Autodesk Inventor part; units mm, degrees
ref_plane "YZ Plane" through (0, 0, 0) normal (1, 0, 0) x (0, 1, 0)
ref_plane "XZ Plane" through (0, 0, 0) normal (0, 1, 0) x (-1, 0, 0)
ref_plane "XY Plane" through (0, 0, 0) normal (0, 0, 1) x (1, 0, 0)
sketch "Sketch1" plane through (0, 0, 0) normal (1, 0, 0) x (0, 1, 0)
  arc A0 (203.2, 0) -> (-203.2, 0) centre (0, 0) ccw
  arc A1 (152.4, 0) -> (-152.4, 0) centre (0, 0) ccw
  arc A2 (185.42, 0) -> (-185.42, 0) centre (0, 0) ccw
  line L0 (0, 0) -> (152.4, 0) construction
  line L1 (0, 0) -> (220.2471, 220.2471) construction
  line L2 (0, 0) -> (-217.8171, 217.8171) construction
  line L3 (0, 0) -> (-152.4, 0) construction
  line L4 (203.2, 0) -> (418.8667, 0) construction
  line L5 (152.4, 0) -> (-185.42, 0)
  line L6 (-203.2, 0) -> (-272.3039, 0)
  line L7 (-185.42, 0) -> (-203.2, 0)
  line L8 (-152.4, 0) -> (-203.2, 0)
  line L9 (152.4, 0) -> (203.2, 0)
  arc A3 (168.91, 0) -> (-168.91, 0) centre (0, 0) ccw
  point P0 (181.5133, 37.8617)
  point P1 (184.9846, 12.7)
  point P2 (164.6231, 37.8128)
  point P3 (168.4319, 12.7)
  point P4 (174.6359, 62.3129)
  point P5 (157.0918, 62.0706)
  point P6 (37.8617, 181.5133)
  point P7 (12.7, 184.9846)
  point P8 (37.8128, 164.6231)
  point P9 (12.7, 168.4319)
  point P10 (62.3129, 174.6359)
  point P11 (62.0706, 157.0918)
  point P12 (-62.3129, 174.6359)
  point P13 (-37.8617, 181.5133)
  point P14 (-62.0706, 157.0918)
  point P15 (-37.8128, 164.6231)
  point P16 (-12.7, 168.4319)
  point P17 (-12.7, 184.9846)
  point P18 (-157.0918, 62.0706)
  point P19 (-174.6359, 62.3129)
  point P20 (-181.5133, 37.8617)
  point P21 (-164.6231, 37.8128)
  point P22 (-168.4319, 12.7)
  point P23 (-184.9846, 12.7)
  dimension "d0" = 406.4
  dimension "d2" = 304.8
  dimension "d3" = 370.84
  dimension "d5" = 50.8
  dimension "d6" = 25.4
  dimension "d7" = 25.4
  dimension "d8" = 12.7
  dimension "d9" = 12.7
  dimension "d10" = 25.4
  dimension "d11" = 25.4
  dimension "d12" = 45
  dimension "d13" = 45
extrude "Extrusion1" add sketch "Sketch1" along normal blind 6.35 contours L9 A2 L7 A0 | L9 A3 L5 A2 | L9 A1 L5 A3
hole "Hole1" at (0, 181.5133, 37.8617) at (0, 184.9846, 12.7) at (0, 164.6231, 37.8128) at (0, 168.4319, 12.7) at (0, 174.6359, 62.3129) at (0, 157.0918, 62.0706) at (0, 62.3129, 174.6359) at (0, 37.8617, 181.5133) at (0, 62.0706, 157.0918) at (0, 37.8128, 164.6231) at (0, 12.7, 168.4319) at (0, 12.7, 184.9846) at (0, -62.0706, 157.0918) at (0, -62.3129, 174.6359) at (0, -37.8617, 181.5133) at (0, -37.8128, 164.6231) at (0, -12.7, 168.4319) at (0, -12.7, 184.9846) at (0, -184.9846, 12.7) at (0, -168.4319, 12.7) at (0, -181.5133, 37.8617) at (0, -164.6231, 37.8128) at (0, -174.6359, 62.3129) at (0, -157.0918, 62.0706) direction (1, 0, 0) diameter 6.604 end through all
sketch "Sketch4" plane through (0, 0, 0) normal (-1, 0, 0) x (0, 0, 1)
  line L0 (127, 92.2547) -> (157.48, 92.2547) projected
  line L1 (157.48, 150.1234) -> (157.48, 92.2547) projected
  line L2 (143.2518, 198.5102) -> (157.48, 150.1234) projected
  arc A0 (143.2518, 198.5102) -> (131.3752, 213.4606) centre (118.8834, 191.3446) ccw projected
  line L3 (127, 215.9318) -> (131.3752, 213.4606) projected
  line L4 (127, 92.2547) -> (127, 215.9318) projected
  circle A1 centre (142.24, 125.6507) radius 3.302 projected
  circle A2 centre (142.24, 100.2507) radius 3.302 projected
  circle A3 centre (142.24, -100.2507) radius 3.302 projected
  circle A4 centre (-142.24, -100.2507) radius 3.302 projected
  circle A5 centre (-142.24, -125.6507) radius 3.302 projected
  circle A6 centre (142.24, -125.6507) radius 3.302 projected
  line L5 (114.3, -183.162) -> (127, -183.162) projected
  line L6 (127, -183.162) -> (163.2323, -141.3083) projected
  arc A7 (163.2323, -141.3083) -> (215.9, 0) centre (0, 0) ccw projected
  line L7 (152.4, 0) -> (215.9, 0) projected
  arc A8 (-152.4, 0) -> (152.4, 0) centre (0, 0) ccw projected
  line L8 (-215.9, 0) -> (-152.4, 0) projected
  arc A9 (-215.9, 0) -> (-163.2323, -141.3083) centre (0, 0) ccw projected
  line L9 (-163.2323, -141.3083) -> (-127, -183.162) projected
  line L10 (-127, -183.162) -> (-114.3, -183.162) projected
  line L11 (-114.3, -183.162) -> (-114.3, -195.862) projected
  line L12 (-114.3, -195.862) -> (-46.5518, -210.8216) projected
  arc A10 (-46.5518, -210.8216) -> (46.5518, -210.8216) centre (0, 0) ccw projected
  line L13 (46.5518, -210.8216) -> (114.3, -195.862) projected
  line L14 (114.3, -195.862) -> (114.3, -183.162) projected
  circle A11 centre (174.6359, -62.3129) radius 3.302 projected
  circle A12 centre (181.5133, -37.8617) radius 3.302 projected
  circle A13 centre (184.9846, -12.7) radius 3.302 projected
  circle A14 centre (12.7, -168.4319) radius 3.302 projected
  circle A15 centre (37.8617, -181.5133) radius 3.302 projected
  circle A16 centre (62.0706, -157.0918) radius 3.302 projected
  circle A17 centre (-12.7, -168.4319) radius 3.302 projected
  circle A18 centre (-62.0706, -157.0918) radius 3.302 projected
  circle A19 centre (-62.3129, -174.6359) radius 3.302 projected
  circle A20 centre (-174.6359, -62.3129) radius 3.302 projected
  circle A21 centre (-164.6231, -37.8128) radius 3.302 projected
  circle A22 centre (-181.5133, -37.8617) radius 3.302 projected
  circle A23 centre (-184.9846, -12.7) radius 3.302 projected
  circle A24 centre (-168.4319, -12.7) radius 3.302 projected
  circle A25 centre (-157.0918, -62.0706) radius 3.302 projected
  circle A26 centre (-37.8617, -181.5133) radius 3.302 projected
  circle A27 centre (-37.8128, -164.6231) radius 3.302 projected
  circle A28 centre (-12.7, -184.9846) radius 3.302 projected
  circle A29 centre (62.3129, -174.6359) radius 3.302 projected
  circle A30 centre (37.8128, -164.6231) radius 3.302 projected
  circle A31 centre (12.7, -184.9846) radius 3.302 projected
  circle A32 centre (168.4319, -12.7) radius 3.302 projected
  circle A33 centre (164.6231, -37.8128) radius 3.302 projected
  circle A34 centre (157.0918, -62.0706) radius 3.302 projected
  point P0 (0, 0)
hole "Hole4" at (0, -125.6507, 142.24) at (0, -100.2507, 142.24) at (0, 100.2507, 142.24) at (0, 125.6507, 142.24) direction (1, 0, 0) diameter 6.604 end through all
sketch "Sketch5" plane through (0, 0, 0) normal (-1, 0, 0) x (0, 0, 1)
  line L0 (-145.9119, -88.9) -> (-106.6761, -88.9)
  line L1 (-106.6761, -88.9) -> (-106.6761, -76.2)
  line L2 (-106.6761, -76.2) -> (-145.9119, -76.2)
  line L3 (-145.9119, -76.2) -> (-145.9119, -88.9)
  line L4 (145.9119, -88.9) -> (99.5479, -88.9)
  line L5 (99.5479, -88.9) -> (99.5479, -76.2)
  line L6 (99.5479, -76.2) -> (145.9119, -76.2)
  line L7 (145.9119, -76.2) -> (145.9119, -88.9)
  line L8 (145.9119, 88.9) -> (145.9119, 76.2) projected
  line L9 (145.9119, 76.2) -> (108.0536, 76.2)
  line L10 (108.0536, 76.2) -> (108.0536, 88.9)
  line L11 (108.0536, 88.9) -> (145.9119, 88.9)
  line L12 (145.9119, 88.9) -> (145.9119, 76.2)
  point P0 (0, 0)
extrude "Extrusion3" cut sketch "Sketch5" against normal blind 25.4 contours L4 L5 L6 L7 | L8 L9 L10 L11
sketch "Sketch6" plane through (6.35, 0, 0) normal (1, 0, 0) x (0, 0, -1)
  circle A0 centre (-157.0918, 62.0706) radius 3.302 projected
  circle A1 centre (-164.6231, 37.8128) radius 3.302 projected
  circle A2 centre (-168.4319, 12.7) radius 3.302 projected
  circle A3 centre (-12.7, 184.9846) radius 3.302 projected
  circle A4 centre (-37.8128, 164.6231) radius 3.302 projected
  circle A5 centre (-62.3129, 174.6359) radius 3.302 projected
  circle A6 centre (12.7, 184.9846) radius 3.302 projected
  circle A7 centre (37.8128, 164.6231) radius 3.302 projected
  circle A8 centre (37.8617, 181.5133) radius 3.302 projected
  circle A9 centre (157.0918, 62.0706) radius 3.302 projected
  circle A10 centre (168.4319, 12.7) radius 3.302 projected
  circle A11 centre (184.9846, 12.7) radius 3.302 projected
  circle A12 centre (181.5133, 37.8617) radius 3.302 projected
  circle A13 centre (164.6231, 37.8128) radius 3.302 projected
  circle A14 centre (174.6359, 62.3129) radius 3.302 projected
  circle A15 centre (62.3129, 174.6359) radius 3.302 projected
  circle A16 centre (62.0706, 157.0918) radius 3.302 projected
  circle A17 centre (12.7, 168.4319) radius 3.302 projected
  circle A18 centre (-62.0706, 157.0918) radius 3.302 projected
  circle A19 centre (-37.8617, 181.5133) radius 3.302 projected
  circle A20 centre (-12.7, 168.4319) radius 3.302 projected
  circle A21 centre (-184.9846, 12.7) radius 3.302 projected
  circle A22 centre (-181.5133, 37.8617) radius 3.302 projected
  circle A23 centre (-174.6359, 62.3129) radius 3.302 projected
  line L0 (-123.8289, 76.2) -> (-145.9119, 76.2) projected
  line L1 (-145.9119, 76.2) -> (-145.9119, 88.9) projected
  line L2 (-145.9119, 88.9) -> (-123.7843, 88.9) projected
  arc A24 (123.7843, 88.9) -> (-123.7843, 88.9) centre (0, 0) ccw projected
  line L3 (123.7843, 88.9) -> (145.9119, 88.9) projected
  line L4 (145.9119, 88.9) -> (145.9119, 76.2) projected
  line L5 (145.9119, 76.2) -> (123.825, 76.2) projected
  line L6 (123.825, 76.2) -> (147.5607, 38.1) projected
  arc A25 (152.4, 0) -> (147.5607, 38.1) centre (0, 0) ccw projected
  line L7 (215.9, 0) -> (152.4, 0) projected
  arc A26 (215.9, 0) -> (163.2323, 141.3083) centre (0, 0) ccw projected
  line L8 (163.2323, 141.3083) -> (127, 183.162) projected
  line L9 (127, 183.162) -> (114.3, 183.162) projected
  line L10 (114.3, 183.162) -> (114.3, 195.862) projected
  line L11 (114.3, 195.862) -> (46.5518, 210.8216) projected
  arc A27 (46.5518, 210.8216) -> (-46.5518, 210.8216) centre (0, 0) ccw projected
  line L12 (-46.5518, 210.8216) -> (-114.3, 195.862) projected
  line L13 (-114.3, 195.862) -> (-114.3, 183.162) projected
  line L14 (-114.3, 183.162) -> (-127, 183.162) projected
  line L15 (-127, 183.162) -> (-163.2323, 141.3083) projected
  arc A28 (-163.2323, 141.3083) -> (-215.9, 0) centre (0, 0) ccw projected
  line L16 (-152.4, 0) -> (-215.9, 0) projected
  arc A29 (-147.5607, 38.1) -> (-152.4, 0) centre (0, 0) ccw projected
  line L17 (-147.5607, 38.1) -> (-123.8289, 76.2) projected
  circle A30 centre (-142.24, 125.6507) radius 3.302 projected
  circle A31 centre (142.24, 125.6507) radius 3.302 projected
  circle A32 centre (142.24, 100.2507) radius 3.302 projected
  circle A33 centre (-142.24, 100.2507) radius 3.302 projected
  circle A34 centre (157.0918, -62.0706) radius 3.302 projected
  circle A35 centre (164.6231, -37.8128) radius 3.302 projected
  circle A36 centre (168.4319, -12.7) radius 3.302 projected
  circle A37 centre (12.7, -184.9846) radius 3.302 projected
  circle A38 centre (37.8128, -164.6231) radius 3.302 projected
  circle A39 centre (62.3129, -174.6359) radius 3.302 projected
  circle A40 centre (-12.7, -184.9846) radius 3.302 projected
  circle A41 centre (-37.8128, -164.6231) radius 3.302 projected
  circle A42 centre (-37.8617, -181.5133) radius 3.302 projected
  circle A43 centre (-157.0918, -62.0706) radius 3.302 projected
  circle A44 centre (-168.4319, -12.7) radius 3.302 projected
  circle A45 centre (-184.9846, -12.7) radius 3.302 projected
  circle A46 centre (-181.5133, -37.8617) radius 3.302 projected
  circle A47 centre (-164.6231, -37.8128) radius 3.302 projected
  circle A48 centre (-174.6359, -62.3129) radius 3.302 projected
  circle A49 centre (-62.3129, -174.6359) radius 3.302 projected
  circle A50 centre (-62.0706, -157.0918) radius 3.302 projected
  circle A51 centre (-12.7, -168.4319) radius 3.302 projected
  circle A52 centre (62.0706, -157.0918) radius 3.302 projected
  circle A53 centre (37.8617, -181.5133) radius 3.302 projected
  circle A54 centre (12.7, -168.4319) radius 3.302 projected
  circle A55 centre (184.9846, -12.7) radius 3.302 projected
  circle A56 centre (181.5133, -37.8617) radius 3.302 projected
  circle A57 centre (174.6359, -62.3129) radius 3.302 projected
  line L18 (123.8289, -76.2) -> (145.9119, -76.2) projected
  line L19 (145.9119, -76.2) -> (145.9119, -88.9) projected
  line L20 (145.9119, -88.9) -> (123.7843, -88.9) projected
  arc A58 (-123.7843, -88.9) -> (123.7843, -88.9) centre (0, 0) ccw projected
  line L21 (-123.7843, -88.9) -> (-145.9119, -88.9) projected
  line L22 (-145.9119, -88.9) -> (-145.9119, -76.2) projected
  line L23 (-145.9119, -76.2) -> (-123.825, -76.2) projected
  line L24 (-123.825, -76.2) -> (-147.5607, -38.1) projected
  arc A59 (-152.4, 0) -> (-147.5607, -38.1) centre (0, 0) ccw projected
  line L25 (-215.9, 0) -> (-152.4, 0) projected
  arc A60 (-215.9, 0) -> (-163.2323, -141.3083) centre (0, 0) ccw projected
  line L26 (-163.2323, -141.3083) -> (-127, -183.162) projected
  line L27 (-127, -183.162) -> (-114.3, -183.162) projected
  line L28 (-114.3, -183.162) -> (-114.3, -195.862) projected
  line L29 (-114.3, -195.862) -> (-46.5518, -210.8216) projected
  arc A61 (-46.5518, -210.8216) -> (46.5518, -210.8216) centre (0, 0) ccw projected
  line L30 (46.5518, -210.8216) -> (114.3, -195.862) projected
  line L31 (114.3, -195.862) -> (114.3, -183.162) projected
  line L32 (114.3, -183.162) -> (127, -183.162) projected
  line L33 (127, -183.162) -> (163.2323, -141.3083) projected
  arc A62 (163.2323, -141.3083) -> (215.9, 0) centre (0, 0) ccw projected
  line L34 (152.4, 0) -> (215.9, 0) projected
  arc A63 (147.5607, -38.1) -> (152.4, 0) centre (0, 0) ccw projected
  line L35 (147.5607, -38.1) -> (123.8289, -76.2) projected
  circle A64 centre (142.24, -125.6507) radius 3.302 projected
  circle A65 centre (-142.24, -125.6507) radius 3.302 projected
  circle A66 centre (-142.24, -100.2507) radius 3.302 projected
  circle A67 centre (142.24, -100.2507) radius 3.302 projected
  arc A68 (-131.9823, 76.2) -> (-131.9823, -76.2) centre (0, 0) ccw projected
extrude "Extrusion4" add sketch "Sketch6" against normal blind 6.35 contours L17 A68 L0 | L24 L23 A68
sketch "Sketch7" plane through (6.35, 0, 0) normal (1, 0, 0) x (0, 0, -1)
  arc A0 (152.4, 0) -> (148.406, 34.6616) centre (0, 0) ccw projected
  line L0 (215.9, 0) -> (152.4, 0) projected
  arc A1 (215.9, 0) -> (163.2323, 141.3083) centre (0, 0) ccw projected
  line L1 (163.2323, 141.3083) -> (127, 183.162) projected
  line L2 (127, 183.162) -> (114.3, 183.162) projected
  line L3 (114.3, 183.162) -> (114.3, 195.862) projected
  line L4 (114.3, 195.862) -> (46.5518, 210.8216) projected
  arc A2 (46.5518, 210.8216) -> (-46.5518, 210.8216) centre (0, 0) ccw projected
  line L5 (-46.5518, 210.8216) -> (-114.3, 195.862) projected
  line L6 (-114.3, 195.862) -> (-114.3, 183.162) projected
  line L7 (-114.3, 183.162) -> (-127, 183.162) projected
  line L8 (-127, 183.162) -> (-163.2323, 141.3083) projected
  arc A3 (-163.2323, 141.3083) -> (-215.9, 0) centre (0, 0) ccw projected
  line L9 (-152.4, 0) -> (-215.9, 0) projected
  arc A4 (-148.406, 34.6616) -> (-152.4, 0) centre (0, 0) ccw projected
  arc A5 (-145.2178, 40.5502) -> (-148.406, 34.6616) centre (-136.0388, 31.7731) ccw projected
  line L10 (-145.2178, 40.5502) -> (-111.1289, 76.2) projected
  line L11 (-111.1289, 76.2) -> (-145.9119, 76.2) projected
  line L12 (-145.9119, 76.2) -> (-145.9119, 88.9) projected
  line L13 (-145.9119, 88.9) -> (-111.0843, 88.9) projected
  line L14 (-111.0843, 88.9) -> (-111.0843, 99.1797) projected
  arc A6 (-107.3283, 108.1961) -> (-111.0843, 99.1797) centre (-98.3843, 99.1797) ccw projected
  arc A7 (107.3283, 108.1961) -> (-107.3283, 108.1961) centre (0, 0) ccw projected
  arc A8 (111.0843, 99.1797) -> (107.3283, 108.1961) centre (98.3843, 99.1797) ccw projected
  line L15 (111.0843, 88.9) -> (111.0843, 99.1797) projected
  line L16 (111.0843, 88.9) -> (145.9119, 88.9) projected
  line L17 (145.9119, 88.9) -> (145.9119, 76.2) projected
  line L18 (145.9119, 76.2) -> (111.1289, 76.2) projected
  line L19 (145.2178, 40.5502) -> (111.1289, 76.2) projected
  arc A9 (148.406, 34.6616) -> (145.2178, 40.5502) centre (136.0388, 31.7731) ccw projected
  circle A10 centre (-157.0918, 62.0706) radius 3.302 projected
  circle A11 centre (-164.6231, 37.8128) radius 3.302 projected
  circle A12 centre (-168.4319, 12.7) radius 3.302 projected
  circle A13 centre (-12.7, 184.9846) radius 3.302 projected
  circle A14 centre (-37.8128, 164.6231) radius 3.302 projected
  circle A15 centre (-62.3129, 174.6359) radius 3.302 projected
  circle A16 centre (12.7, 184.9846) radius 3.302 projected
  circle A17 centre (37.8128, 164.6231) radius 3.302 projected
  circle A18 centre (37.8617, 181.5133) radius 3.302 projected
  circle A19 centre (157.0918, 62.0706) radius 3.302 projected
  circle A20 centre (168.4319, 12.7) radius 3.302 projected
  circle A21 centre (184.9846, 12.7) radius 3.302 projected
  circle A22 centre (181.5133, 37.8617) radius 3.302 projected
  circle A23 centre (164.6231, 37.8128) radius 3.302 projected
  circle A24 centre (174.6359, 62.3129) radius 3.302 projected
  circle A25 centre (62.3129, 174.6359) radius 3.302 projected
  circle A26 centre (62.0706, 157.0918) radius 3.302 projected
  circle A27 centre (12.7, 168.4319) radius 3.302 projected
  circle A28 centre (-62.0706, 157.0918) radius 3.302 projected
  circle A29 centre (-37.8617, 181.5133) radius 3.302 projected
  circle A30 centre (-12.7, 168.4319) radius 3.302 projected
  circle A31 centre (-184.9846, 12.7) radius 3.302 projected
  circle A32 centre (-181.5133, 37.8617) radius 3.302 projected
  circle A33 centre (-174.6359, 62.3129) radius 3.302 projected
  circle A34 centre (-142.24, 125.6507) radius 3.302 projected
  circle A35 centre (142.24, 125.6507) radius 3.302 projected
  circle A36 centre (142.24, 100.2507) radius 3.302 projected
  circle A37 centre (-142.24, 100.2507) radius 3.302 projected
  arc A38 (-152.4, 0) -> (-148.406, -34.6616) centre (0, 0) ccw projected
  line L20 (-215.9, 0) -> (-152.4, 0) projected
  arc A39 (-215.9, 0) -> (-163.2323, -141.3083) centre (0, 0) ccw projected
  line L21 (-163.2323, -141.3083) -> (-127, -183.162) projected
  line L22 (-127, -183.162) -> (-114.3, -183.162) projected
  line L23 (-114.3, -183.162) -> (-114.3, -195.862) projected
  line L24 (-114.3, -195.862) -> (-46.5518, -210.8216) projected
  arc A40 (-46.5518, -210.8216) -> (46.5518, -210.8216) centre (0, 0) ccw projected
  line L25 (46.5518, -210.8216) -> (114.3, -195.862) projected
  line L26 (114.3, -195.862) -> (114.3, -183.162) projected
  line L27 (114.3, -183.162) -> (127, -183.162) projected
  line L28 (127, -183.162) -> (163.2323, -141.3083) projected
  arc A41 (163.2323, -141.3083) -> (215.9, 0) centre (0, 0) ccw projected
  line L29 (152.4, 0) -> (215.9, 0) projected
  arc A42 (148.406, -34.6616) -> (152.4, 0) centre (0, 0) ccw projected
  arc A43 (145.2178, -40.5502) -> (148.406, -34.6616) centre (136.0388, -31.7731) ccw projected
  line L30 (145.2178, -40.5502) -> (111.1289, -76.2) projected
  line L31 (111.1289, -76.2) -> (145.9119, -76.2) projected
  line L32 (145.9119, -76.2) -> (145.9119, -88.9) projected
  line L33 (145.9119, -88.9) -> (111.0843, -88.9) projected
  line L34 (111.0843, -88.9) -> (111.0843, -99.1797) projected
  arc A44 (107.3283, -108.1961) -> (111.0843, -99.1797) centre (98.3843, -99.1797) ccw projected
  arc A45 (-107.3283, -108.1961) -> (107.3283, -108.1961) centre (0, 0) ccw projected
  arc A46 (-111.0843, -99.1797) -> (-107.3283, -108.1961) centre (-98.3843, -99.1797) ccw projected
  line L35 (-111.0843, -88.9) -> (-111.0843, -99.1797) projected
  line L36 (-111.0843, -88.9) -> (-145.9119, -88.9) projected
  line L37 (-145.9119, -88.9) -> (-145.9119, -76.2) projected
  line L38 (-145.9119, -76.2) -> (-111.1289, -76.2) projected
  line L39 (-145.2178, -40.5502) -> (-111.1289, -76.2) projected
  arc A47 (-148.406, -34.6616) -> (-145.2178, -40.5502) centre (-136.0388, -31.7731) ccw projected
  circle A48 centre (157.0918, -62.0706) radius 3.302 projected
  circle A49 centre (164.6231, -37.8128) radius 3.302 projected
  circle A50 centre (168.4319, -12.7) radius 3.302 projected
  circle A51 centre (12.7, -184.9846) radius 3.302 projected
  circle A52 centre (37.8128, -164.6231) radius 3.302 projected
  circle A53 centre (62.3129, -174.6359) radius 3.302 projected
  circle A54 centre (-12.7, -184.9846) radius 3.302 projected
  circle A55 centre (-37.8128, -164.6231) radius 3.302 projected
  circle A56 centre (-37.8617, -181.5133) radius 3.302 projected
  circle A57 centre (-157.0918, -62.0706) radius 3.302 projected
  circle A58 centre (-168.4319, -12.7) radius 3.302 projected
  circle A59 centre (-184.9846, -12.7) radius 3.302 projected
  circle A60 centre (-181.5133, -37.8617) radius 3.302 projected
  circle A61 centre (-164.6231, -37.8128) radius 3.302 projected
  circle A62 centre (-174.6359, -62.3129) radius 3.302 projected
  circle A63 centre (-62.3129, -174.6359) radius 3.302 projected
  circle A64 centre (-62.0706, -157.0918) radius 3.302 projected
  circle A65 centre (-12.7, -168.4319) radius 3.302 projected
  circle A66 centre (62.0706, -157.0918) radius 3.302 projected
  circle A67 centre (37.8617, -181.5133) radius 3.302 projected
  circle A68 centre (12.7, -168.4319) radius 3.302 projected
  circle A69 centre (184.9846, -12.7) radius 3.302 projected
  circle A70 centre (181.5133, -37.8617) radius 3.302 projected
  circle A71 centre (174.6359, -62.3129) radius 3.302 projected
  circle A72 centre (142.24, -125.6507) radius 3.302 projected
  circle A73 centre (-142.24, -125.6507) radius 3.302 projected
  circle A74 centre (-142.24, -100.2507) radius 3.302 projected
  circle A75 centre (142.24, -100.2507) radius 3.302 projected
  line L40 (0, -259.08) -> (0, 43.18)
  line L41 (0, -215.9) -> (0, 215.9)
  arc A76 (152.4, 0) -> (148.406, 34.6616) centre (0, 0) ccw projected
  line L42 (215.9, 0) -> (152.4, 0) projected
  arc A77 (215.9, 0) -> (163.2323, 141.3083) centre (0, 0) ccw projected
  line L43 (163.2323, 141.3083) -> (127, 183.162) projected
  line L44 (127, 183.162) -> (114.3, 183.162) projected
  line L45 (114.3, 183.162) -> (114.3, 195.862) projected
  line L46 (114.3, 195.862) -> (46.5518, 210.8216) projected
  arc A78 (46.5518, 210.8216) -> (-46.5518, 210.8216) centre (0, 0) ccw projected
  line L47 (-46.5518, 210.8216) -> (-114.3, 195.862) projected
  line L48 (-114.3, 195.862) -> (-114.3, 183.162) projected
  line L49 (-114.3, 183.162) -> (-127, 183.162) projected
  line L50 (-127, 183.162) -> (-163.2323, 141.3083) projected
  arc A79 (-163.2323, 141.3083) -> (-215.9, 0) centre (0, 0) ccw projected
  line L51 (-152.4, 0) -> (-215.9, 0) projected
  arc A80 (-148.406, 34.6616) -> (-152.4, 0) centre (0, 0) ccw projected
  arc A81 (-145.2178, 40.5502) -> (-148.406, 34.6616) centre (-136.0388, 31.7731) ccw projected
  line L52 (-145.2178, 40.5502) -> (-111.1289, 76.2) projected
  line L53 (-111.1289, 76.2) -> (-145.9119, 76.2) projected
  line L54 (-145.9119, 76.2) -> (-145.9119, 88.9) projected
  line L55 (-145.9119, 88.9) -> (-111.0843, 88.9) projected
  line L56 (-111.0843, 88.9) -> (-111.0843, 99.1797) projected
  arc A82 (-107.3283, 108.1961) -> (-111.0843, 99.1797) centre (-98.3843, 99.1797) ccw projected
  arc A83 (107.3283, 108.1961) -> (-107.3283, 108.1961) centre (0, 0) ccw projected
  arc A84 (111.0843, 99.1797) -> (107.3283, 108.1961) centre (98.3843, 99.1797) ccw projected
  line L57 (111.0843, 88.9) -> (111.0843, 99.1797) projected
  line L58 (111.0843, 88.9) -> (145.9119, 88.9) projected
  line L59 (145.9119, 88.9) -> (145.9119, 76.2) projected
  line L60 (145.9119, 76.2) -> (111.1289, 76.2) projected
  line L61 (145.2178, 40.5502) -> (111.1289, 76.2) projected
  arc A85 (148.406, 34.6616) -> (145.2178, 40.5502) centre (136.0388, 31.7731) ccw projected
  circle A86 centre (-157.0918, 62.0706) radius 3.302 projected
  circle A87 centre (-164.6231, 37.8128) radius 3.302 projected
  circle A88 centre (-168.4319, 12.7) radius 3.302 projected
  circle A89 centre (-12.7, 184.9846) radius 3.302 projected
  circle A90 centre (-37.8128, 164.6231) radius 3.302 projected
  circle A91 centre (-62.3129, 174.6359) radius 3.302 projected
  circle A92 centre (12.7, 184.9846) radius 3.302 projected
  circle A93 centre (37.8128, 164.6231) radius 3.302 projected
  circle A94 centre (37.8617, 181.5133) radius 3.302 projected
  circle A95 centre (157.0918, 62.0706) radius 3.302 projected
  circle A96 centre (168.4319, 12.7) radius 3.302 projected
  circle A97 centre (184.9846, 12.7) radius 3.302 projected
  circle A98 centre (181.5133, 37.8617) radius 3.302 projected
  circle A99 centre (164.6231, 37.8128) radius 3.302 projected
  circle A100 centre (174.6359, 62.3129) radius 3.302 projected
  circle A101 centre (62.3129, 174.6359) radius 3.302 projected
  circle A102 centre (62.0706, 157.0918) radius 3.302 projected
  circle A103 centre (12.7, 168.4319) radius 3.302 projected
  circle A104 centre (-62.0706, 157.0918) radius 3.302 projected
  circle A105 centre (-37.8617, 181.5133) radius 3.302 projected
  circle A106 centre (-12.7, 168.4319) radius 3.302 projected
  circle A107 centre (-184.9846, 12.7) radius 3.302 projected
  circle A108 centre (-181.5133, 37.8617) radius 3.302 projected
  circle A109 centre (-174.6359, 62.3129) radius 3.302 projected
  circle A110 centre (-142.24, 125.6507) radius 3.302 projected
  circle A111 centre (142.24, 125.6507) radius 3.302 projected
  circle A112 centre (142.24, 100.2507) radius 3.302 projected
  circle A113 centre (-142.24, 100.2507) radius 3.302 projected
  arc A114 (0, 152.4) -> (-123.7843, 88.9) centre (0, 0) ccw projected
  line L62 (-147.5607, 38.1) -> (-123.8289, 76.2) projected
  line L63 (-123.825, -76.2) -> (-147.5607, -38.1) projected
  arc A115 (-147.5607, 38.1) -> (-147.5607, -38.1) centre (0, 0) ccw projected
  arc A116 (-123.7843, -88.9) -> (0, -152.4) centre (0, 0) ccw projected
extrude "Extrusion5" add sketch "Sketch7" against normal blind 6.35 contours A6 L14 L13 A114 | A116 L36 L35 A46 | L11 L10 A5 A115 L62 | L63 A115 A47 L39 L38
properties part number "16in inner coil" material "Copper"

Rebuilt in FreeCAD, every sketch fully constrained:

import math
import FreeCAD as App
import Part
import Sketcher
Q = App.Units.Quantity


def add_polygon(sketch, points):
    """Adds a closed chain of lines whose ends are joined by coincident constraints."""
    first, n = sketch.GeometryCount, len(points)
    for a, b in zip(points, points[1:] + points[:1]):
        sketch.addGeometry(Part.LineSegment(App.Vector(*a, 0), App.Vector(*b, 0)), False)
    for i in range(n):
        sketch.addConstraint(Sketcher.Constraint("Coincident", first + i, 2, first + (i + 1) % n, 1))

doc = App.newDocument("Part")
body = doc.addObject("PartDesign::Body", "Body")

# Sketch on YZ plane
sketch1 = body.newObject("Sketcher::SketchObject", "Sketch")
sketch1.AttachmentSupport = (doc.getObject("YZ_Plane"), [""])
sketch1.MapMode = "FlatFace"
sketch1.addGeometry(Part.ArcOfCircle(Part.Circle(App.Vector(0, 0, 0), App.Vector(0, 0, 1), 203), math.radians(0), math.radians(180)), False)
sketch1.addGeometry(Part.LineSegment(App.Vector(-203, 0, 0), App.Vector(-152, 0, 0)), False)
sketch1.addGeometry(Part.ArcOfCircle(Part.Circle(App.Vector(0, 0, 0), App.Vector(0, 0, 1), 152), math.radians(0), math.radians(180)), False)
sketch1.addGeometry(Part.LineSegment(App.Vector(152, 0, 0), App.Vector(203, 0, 0)), False)
sketch1.addConstraint(Sketcher.Constraint("Coincident", 0, 2, 1, 1))
sketch1.addConstraint(Sketcher.Constraint("Coincident", 1, 2, 2, 2))
sketch1.addConstraint(Sketcher.Constraint("Coincident", 2, 1, 3, 1))
sketch1.addConstraint(Sketcher.Constraint("Coincident", 3, 2, 0, 1))
sketch1.addConstraint(Sketcher.Constraint("Horizontal", 1))
sketch1.addConstraint(Sketcher.Constraint("Horizontal", 3))
sketch1.addConstraint(Sketcher.Constraint("Coincident", 0, 3, -1, 1))
sketch1.addConstraint(Sketcher.Constraint("Coincident", 2, 3, -1, 1))
sketch1.addConstraint(Sketcher.Constraint("PointOnObject", 0, 2, -1))
sketch1.addConstraint(Sketcher.Constraint("PointOnObject", 2, 1, -1))
sketch1.addConstraint(Sketcher.Constraint("Radius", 0, Q("8 in")))
sketch1.addConstraint(Sketcher.Constraint("Radius", 2, Q("6 in")))
pad1 = body.newObject("PartDesign::Pad", "Pad")
pad1.Profile = sketch1
pad1.Length = Q("0.25 in")

# Sketch on YZ plane
sketch2 = body.newObject("Sketcher::SketchObject", "Sketch001")
sketch2.AttachmentSupport = (doc.getObject("YZ_Plane"), [""])
sketch2.MapMode = "FlatFace"
sketch2.addGeometry(Part.Circle(App.Vector(181.5, 37.9, 0), App.Vector(0, 0, 1), 3.3), False)
sketch2.addGeometry(Part.Circle(App.Vector(185, 12.7, 0), App.Vector(0, 0, 1), 3.3), False)
sketch2.addGeometry(Part.Circle(App.Vector(164.6, 37.8, 0), App.Vector(0, 0, 1), 3.3), False)
sketch2.addGeometry(Part.Circle(App.Vector(168.4, 12.7, 0), App.Vector(0, 0, 1), 3.3), False)
sketch2.addGeometry(Part.Circle(App.Vector(174.6, 62.3, 0), App.Vector(0, 0, 1), 3.3), False)
sketch2.addGeometry(Part.Circle(App.Vector(157.1, 62.1, 0), App.Vector(0, 0, 1), 3.3), False)
sketch2.addGeometry(Part.Circle(App.Vector(62.3, 174.6, 0), App.Vector(0, 0, 1), 3.3), False)
sketch2.addGeometry(Part.Circle(App.Vector(37.9, 181.5, 0), App.Vector(0, 0, 1), 3.3), False)
sketch2.addGeometry(Part.Circle(App.Vector(62.1, 157.1, 0), App.Vector(0, 0, 1), 3.3), False)
sketch2.addGeometry(Part.Circle(App.Vector(37.8, 164.6, 0), App.Vector(0, 0, 1), 3.3), False)
sketch2.addGeometry(Part.Circle(App.Vector(12.7, 168.4, 0), App.Vector(0, 0, 1), 3.3), False)
sketch2.addGeometry(Part.Circle(App.Vector(12.7, 185, 0), App.Vector(0, 0, 1), 3.3), False)
sketch2.addGeometry(Part.Circle(App.Vector(-62.1, 157.1, 0), App.Vector(0, 0, 1), 3.3), False)
sketch2.addGeometry(Part.Circle(App.Vector(-62.3, 174.6, 0), App.Vector(0, 0, 1), 3.3), False)
sketch2.addGeometry(Part.Circle(App.Vector(-37.9, 181.5, 0), App.Vector(0, 0, 1), 3.3), False)
sketch2.addGeometry(Part.Circle(App.Vector(-37.8, 164.6, 0), App.Vector(0, 0, 1), 3.3), False)
sketch2.addGeometry(Part.Circle(App.Vector(-12.7, 168.4, 0), App.Vector(0, 0, 1), 3.3), False)
sketch2.addGeometry(Part.Circle(App.Vector(-12.7, 185, 0), App.Vector(0, 0, 1), 3.3), False)
sketch2.addGeometry(Part.Circle(App.Vector(-185, 12.7, 0), App.Vector(0, 0, 1), 3.3), False)
sketch2.addGeometry(Part.Circle(App.Vector(-168.4, 12.7, 0), App.Vector(0, 0, 1), 3.3), False)
sketch2.addGeometry(Part.Circle(App.Vector(-181.5, 37.9, 0), App.Vector(0, 0, 1), 3.3), False)
sketch2.addGeometry(Part.Circle(App.Vector(-164.6, 37.8, 0), App.Vector(0, 0, 1), 3.3), False)
sketch2.addGeometry(Part.Circle(App.Vector(-174.6, 62.3, 0), App.Vector(0, 0, 1), 3.3), False)
sketch2.addGeometry(Part.Circle(App.Vector(-157.1, 62.1, 0), App.Vector(0, 0, 1), 3.3), False)
sketch2.addConstraint(Sketcher.Constraint("Equal", 0, 1))
sketch2.addConstraint(Sketcher.Constraint("Equal", 1, 2))
sketch2.addConstraint(Sketcher.Constraint("Equal", 2, 3))
sketch2.addConstraint(Sketcher.Constraint("Equal", 3, 4))
sketch2.addConstraint(Sketcher.Constraint("Equal", 4, 5))
sketch2.addConstraint(Sketcher.Constraint("Equal", 5, 6))
sketch2.addConstraint(Sketcher.Constraint("Equal", 6, 7))
sketch2.addConstraint(Sketcher.Constraint("Equal", 7, 8))
sketch2.addConstraint(Sketcher.Constraint("Equal", 8, 9))
sketch2.addConstraint(Sketcher.Constraint("Equal", 9, 10))
sketch2.addConstraint(Sketcher.Constraint("Equal", 10, 11))
sketch2.addConstraint(Sketcher.Constraint("Equal", 11, 12))
sketch2.addConstraint(Sketcher.Constraint("Equal", 12, 13))
sketch2.addConstraint(Sketcher.Constraint("Equal", 13, 14))
sketch2.addConstraint(Sketcher.Constraint("Equal", 14, 15))
sketch2.addConstraint(Sketcher.Constraint("Equal", 15, 16))
sketch2.addConstraint(Sketcher.Constraint("Equal", 16, 17))
sketch2.addConstraint(Sketcher.Constraint("Equal", 17, 18))
sketch2.addConstraint(Sketcher.Constraint("Equal", 18, 19))
sketch2.addConstraint(Sketcher.Constraint("Equal", 19, 20))
sketch2.addConstraint(Sketcher.Constraint("Equal", 20, 21))
sketch2.addConstraint(Sketcher.Constraint("Equal", 21, 22))
sketch2.addConstraint(Sketcher.Constraint("Equal", 22, 23))
sketch2.addConstraint(Sketcher.Constraint("Symmetric", 8, 3, 12, 3, -2))
sketch2.addConstraint(Sketcher.Constraint("Symmetric", 6, 3, 13, 3, -2))
sketch2.addConstraint(Sketcher.Constraint("Symmetric", 7, 3, 14, 3, -2))
sketch2.addConstraint(Sketcher.Constraint("Symmetric", 9, 3, 15, 3, -2))
sketch2.addConstraint(Sketcher.Constraint("Symmetric", 10, 3, 16, 3, -2))
sketch2.addConstraint(Sketcher.Constraint("Symmetric", 11, 3, 17, 3, -2))
sketch2.addConstraint(Sketcher.Constraint("Symmetric", 1, 3, 18, 3, -2))
sketch2.addConstraint(Sketcher.Constraint("Symmetric", 3, 3, 19, 3, -2))
sketch2.addConstraint(Sketcher.Constraint("Symmetric", 0, 3, 20, 3, -2))
sketch2.addConstraint(Sketcher.Constraint("Symmetric", 2, 3, 21, 3, -2))
sketch2.addConstraint(Sketcher.Constraint("Symmetric", 4, 3, 22, 3, -2))
sketch2.addConstraint(Sketcher.Constraint("Symmetric", 5, 3, 23, 3, -2))
sketch2.addConstraint(Sketcher.Constraint("Horizontal", 1, 3, 3, 3))
sketch2.addConstraint(Sketcher.Constraint("Vertical", 10, 3, 11, 3))
sketch2.addConstraint(Sketcher.Constraint("Diameter", 0, Q("0.26 in")))
sketch2.addConstraint(Sketcher.Constraint("DistanceX", 16, 3, 10, 3, Q("1 in")))
sketch2.addConstraint(Sketcher.Constraint("DistanceY", -1, 1, 1, 3, Q("0.5 in")))
sketch2.addConstraint(Sketcher.Constraint("DistanceX", 8, 3, 5, 3, Q("3.741 in")))
sketch2.addConstraint(Sketcher.Constraint("DistanceY", 5, 3, 8, 3, Q("3.741 in")))
sketch2.addConstraint(Sketcher.Constraint("DistanceX", -1, 1, 0, 3, Q("7.1462 in")))
sketch2.addConstraint(Sketcher.Constraint("DistanceY", -1, 1, 2, 3, Q("1.4887 in")))
sketch2.addConstraint(Sketcher.Constraint("DistanceY", -1, 1, 7, 3, Q("7.1462 in")))
sketch2.addConstraint(Sketcher.Constraint("DistanceX", -1, 1, 9, 3, Q("1.4887 in")))
sketch2.addConstraint(Sketcher.Constraint("DistanceX", 2, 3, 4, 3, Q("0.3942 in")))
sketch2.addConstraint(Sketcher.Constraint("DistanceX", 5, 3, 2, 3, Q("0.2965 in")))
sketch2.addConstraint(Sketcher.Constraint("DistanceY", 0, 3, 5, 3, Q("0.9531 in")))
sketch2.addConstraint(Sketcher.Constraint("DistanceY", 5, 3, 6, 3, Q("4.4317 in")))
sketch2.addConstraint(Sketcher.Constraint("DistanceX", 7, 3, 5, 3, Q("4.6941 in")))
sketch2.addConstraint(Sketcher.Constraint("DistanceY", 8, 3, 9, 3, Q("0.2965 in")))
sketch2.addConstraint(Sketcher.Constraint("DistanceX", 18, 3, 13, 3, Q("4.8296 in")))
sketch2.addConstraint(Sketcher.Constraint("DistanceY", -1, 1, 0, 3, 37.8617))
sketch2.addConstraint(Sketcher.Constraint("DistanceX", -1, 1, 1, 3, 184.9846))
sketch2.addConstraint(Sketcher.Constraint("DistanceX", -1, 1, 2, 3, 164.623))
sketch2.addConstraint(Sketcher.Constraint("DistanceX", -1, 1, 3, 3, 168.432))
sketch2.addConstraint(Sketcher.Constraint("DistanceY", -1, 1, 4, 3, 62.313))
sketch2.addConstraint(Sketcher.Constraint("DistanceY", -1, 1, 10, 3, 168.432))
sketch2.addConstraint(Sketcher.Constraint("DistanceY", -1, 1, 11, 3, 184.9846))
doc.recompute()
hole = body.newObject("PartDesign::Hole", "Hole")
hole.Profile = sketch2
hole.ThreadType = "None"
hole.Diameter = Q("0.26 in")
hole.DepthType = "ThroughAll"
hole.Reversed = True

# Sketch on YZ plane
sketch3 = body.newObject("Sketcher::SketchObject", "Sketch002")
sketch3.AttachmentSupport = (doc.getObject("YZ_Plane"), [""])
sketch3.MapMode = "FlatFace"
sketch3.addGeometry(Part.Circle(App.Vector(-125.7, 142.2, 0), App.Vector(0, 0, 1), 3.3), False)
sketch3.addGeometry(Part.Circle(App.Vector(-100.3, 142.2, 0), App.Vector(0, 0, 1), 3.3), False)
sketch3.addGeometry(Part.Circle(App.Vector(100.3, 142.2, 0), App.Vector(0, 0, 1), 3.3), False)
sketch3.addGeometry(Part.Circle(App.Vector(125.7, 142.2, 0), App.Vector(0, 0, 1), 3.3), False)
sketch3.addConstraint(Sketcher.Constraint("Equal", 0, 1))
sketch3.addConstraint(Sketcher.Constraint("Equal", 1, 2))
sketch3.addConstraint(Sketcher.Constraint("Equal", 2, 3))
sketch3.addConstraint(Sketcher.Constraint("Symmetric", 1, 3, 2, 3, -2))
sketch3.addConstraint(Sketcher.Constraint("Symmetric", 0, 3, 3, 3, -2))
sketch3.addConstraint(Sketcher.Constraint("Horizontal", 0, 3, 1, 3))
sketch3.addConstraint(Sketcher.Constraint("Diameter", 0, Q("0.26 in")))
sketch3.addConstraint(Sketcher.Constraint("DistanceX", 0, 3, 1, 3, Q("1 in")))
sketch3.addConstraint(Sketcher.Constraint("DistanceY", -1, 1, 0, 3, Q("5.6 in")))
sketch3.addConstraint(Sketcher.Constraint("DistanceX", 0, 3, -1, 1, 125.6507))
doc.recompute()
hole2 = body.newObject("PartDesign::Hole", "Hole001")
hole2.Profile = sketch3
hole2.ThreadType = "None"
hole2.Diameter = Q("0.26 in")
hole2.DepthType = "ThroughAll"
hole2.Reversed = True

# Sketch on YZ plane
sketch4 = body.newObject("Sketcher::SketchObject", "Sketch003")
sketch4.AttachmentSupport = (doc.getObject("YZ_Plane"), [""])
sketch4.MapMode = "FlatFace"
add_polygon(sketch4, [(-89, 100), (-89, 146), (-76, 146), (-76, 100)])  # lines 0-3
add_polygon(sketch4, [(76, 146), (89, 146), (89, 108), (76, 108)])  # lines 4-7
sketch4.addConstraint(Sketcher.Constraint("Vertical", 0))
sketch4.addConstraint(Sketcher.Constraint("Horizontal", 1))
sketch4.addConstraint(Sketcher.Constraint("Vertical", 2))
sketch4.addConstraint(Sketcher.Constraint("Horizontal", 3))
sketch4.addConstraint(Sketcher.Constraint("Horizontal", 4))
sketch4.addConstraint(Sketcher.Constraint("Vertical", 5))
sketch4.addConstraint(Sketcher.Constraint("Horizontal", 6))
sketch4.addConstraint(Sketcher.Constraint("Vertical", 7))
sketch4.addConstraint(Sketcher.Constraint("Symmetric", 0, 2, 4, 2, -2))
sketch4.addConstraint(Sketcher.Constraint("Equal", 3, 4))
sketch4.addConstraint(Sketcher.Constraint("DistanceX", 1, 1, 1, 2, Q("0.5 in")))
sketch4.addConstraint(Sketcher.Constraint("DistanceX", 1, 2, -1, 1, Q("3 in")))
sketch4.addConstraint(Sketcher.Constraint("DistanceY", 0, 1, 0, 2, 46.364))
sketch4.addConstraint(Sketcher.Constraint("DistanceY", 5, 2, 5, 1, 37.8583))
sketch4.addConstraint(Sketcher.Constraint("DistanceY", -1, 1, 2, 2, Q("3.9192 in")))
pocket1 = body.newObject("PartDesign::Pocket", "Pocket")
pocket1.Profile = sketch4
pocket1.Length = Q("1 in")
pocket1.Reversed = True

# Sketch on YZ plane
sketch5 = body.newObject("Sketcher::SketchObject", "Sketch004")
sketch5.AttachmentSupport = (doc.getObject("YZ_Plane"), [""])
sketch5.MapMode = "FlatFace"
sketch5.AttachmentOffset = App.Placement(App.Vector(0, 0, 0.25 * 25.4), App.Rotation())
sketch5.addGeometry(Part.LineSegment(App.Vector(38, 148, 0), App.Vector(76, 124, 0)), False)
sketch5.addGeometry(Part.LineSegment(App.Vector(76, 124, 0), App.Vector(76, 132, 0)), False)
sketch5.addGeometry(Part.ArcOfCircle(Part.Circle(App.Vector(0, 0, 0), App.Vector(0, 0, 1), 152), math.radians(60), math.radians(75.52)), False)
sketch5.addGeometry(Part.LineSegment(App.Vector(-76, 124, 0), App.Vector(-38, 148, 0)), False)
sketch5.addGeometry(Part.ArcOfCircle(Part.Circle(App.Vector(0, 0, 0), App.Vector(0, 0, 1), 152), math.radians(104.48), math.radians(120)), False)
sketch5.addGeometry(Part.LineSegment(App.Vector(-76, 132, 0), App.Vector(-76, 124, 0)), False)
sketch5.addConstraint(Sketcher.Constraint("Coincident", 0, 2, 1, 1))
sketch5.addConstraint(Sketcher.Constraint("Coincident", 1, 2, 2, 1))
sketch5.addConstraint(Sketcher.Constraint("Coincident", 2, 2, 0, 1))
sketch5.addConstraint(Sketcher.Constraint("Coincident", 3, 2, 4, 1))
sketch5.addConstraint(Sketcher.Constraint("Coincident", 4, 2, 5, 1))
sketch5.addConstraint(Sketcher.Constraint("Coincident", 5, 2, 3, 1))
sketch5.addConstraint(Sketcher.Constraint("Vertical", 1))
sketch5.addConstraint(Sketcher.Constraint("Vertical", 5))
sketch5.addConstraint(Sketcher.Constraint("Coincident", 2, 3, -1, 1))
sketch5.addConstraint(Sketcher.Constraint("Coincident", 4, 3, -1, 1))
sketch5.addConstraint(Sketcher.Constraint("Equal", 2, 4))
sketch5.addConstraint(Sketcher.Constraint("Horizontal", 2, 2, 3, 2))
sketch5.addConstraint(Sketcher.Constraint("Horizontal", 1, 2, 4, 2))
sketch5.addConstraint(Sketcher.Constraint("Radius", 2, Q("6 in")))
sketch5.addConstraint(Sketcher.Constraint("DistanceX", -1, 1, 0, 2, Q("3 in")))
sketch5.addConstraint(Sketcher.Constraint("DistanceX", 3, 2, 2, 2, Q("3 in")))
sketch5.addConstraint(Sketcher.Constraint("DistanceY", 1, 1, 1, 2, Q("0.321 in")))
sketch5.addConstraint(Sketcher.Constraint("DistanceY", -1, 1, 5, 2, Q("4.875 in")))
pad2 = body.newObject("PartDesign::Pad", "Pad001")
pad2.Profile = sketch5
pad2.Length = Q("0.25 in")
pad2.Reversed = True

# Sketch on YZ plane
sketch6 = body.newObject("Sketcher::SketchObject", "Sketch005")
sketch6.AttachmentSupport = (doc.getObject("YZ_Plane"), [""])
sketch6.MapMode = "FlatFace"
sketch6.AttachmentOffset = App.Placement(App.Vector(0, 0, 0.25 * 25.4), App.Rotation())
sketch6.addGeometry(Part.ArcOfCircle(Part.Circle(App.Vector(99.2, 98.4, 0), App.Vector(0, 0, 1), 12.7), math.radians(45), math.radians(90)), False)
sketch6.addGeometry(Part.ArcOfCircle(Part.Circle(App.Vector(0, 0, 0), App.Vector(0, 0, 1), 152.4), math.radians(44.77), math.radians(54.31)), False)
sketch6.addGeometry(Part.LineSegment(App.Vector(88.9, 123.8, 0), App.Vector(88.9, 111.1, 0)), False)
sketch6.addGeometry(Part.LineSegment(App.Vector(88.9, 111.1, 0), App.Vector(99.2, 111.1, 0)), False)
sketch6.addGeometry(Part.ArcOfCircle(Part.Circle(App.Vector(0, 0, 0), App.Vector(0, 0, 1), 152.4), math.radians(125.69), math.radians(135.23)), False)
sketch6.addGeometry(Part.ArcOfCircle(Part.Circle(App.Vector(-99.2, 98.4, 0), App.Vector(0, 0, 1), 12.7), math.radians(90), math.radians(135)), False)
sketch6.addGeometry(Part.LineSegment(App.Vector(-99.2, 111.1, 0), App.Vector(-88.9, 111.1, 0)), False)
sketch6.addGeometry(Part.LineSegment(App.Vector(-88.9, 111.1, 0), App.Vector(-88.9, 123.8, 0)), False)
sketch6.addGeometry(Part.LineSegment(App.Vector(76.2, 111.1, 0), App.Vector(76.2, 123.8, 0)), False)
sketch6.addGeometry(Part.LineSegment(App.Vector(76.2, 123.8, 0), App.Vector(38.1, 147.6, 0)), False)
sketch6.addGeometry(Part.ArcOfCircle(Part.Circle(App.Vector(0, 0, 0), App.Vector(0, 0, 1), 152.4), math.radians(75.52), math.radians(76.85)), False)
sketch6.addGeometry(Part.ArcOfCircle(Part.Circle(App.Vector(31.8, 136, 0), App.Vector(0, 0, 1), 12.7), math.radians(46), math.radians(77)), False)
sketch6.addGeometry(Part.LineSegment(App.Vector(40.6, 145.2, 0), App.Vector(76.2, 111.1, 0)), False)
sketch6.addGeometry(Part.LineSegment(App.Vector(-38.1, 147.6, 0), App.Vector(-76.2, 123.8, 0)), False)
sketch6.addGeometry(Part.LineSegment(App.Vector(-76.2, 123.8, 0), App.Vector(-76.2, 111.1, 0)), False)
sketch6.addGeometry(Part.LineSegment(App.Vector(-76.2, 111.1, 0), App.Vector(-40.6, 145.2, 0)), False)
sketch6.addGeometry(Part.ArcOfCircle(Part.Circle(App.Vector(-31.8, 136, 0), App.Vector(0, 0, 1), 12.7), math.radians(103), math.radians(134)), False)
sketch6.addGeometry(Part.ArcOfCircle(Part.Circle(App.Vector(0, 0, 0), App.Vector(0, 0, 1), 152.4), math.radians(103.15), math.radians(104.48)), False)
sketch6.addConstraint(Sketcher.Constraint("Tangent", 0, 1, 1, 1))
sketch6.addConstraint(Sketcher.Constraint("Coincident", 1, 2, 2, 1))
sketch6.addConstraint(Sketcher.Constraint("Coincident", 2, 2, 3, 1))
sketch6.addConstraint(Sketcher.Constraint("Tangent", 3, 2, 0, 2))
sketch6.addConstraint(Sketcher.Constraint("Tangent", 4, 2, 5, 2))
sketch6.addConstraint(Sketcher.Constraint("Tangent", 5, 1, 6, 1))
sketch6.addConstraint(Sketcher.Constraint("Coincident", 6, 2, 7, 1))
sketch6.addConstraint(Sketcher.Constraint("Coincident", 7, 2, 4, 1))
sketch6.addConstraint(Sketcher.Constraint("Coincident", 8, 2, 9, 1))
sketch6.addConstraint(Sketcher.Constraint("Coincident", 9, 2, 10, 1))
sketch6.addConstraint(Sketcher.Constraint("Tangent", 10, 2, 11, 2))
sketch6.addConstraint(Sketcher.Constraint("Tangent", 11, 1, 12, 1))
sketch6.addConstraint(Sketcher.Constraint("Coincident", 12, 2, 8, 1))
sketch6.addConstraint(Sketcher.Constraint("Coincident", 13, 2, 14, 1))
sketch6.addConstraint(Sketcher.Constraint("Coincident", 14, 2, 15, 1))
sketch6.addConstraint(Sketcher.Constraint("Tangent", 15, 2, 16, 2))
sketch6.addConstraint(Sketcher.Constraint("Tangent", 16, 1, 17, 1))
sketch6.addConstraint(Sketcher.Constraint("Coincident", 17, 2, 13, 1))
sketch6.addConstraint(Sketcher.Constraint("Vertical", 2))
sketch6.addConstraint(Sketcher.Constraint("Horizontal", 3))
sketch6.addConstraint(Sketcher.Constraint("Horizontal", 6))
sketch6.addConstraint(Sketcher.Constraint("Vertical", 7))
sketch6.addConstraint(Sketcher.Constraint("Vertical", 8))
sketch6.addConstraint(Sketcher.Constraint("Vertical", 14))
sketch6.addConstraint(Sketcher.Constraint("Coincident", 1, 3, -1, 1))
sketch6.addConstraint(Sketcher.Constraint("Coincident", 4, 3, -1, 1))
sketch6.addConstraint(Sketcher.Constraint("Coincident", 10, 3, -1, 1))
sketch6.addConstraint(Sketcher.Constraint("Coincident", 17, 3, -1, 1))
sketch6.addConstraint(Sketcher.Constraint("Equal", 1, 4))
sketch6.addConstraint(Sketcher.Constraint("Equal", 0, 5))
sketch6.addConstraint(Sketcher.Constraint("Equal", 4, 10))
sketch6.addConstraint(Sketcher.Constraint("Equal", 5, 11))
sketch6.addConstraint(Sketcher.Constraint("Equal", 11, 16))
sketch6.addConstraint(Sketcher.Constraint("Equal", 10, 17))
sketch6.addConstraint(Sketcher.Constraint("Symmetric", 2, 2, 6, 2, -2))
sketch6.addConstraint(Sketcher.Constraint("Symmetric", 12, 2, 14, 2, -2))
sketch6.addConstraint(Sketcher.Constraint("Horizontal", 11, 3, 16, 3))
sketch6.addConstraint(Sketcher.Constraint("Horizontal", 9, 2, 17, 2))
sketch6.addConstraint(Sketcher.Constraint("Equal", 7, 8))
sketch6.addConstraint(Sketcher.Constraint("Radius", 1, Q("6 in")))
sketch6.addConstraint(Sketcher.Constraint("Radius", 0, Q("0.5 in")))
sketch6.addConstraint(Sketcher.Constraint("DistanceY", 2, 2, 2, 1, Q("0.5 in")))
sketch6.addConstraint(Sketcher.Constraint("DistanceX", -1, 1, 8, 2, Q("3 in")))
sketch6.addConstraint(Sketcher.Constraint("DistanceX", 9, 2, 1, 2, Q("2 in")))
sketch6.addConstraint(Sketcher.Constraint("DistanceX", -1, 1, 1, 2, Q("3.5 in")))
sketch6.addConstraint(Sketcher.Constraint("DistanceY", -1, 1, 13, 2, Q("4.875 in")))
sketch6.addConstraint(Sketcher.Constraint("Distance", 9, Q("1.7672 in")))
sketch6.addConstraint(Sketcher.Constraint("DistanceX", -1, 1, 11, 3, Q("1.2509 in")))
pad3 = body.newObject("PartDesign::Pad", "Pad002")
pad3.Profile = sketch6
pad3.Length = Q("0.25 in")
pad3.Reversed = True

doc.recompute()
